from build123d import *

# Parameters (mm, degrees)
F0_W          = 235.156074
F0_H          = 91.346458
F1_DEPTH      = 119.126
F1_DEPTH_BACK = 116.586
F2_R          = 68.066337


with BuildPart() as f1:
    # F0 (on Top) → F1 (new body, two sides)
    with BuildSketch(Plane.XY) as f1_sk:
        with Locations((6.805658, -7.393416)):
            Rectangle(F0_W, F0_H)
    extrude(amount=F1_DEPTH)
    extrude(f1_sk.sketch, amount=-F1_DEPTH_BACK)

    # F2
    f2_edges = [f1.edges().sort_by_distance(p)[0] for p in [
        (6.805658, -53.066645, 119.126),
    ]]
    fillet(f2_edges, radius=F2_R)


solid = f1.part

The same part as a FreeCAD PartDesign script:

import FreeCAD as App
import Part
import Sketcher
from FreeCAD import Vector
Q = App.Units.Quantity


def edges_at(feature, points):
    """Names of the edges that pass closest to the given points."""
    edges = feature.Shape.Edges
    near = lambda p: min(range(len(edges)), key=lambda i: edges[i].distToShape(Part.Vertex(*p))[0])
    return sorted({f"Edge{near(p) + 1}" for p in points})


def add_polygon(sketch, points):
    """Adds a closed chain of lines whose ends are joined by coincident constraints."""
    first, n = sketch.GeometryCount, len(points)
    for a, b in zip(points, points[1:] + points[:1]):
        sketch.addGeometry(Part.LineSegment(App.Vector(*a, 0), App.Vector(*b, 0)), False)
    for i in range(n):
        sketch.addConstraint(Sketcher.Constraint("Coincident", first + i, 2, first + (i + 1) % n, 1))

doc = App.newDocument("Part")
body = doc.addObject("PartDesign::Body", "Body")

sketch1 = body.newObject("Sketcher::SketchObject", "Sketch")
sketch1.AttachmentSupport = (doc.getObject("XY_Plane"), [""])
sketch1.MapMode = "FlatFace"
add_polygon(sketch1, [(-111, 38), (-111, -53), (124, -53), (124, 38)])
sketch1.addConstraint([
    Sketcher.Constraint("Vertical", 0),
    Sketcher.Constraint("Horizontal", 1),
    Sketcher.Constraint("Vertical", 2),
    Sketcher.Constraint("Horizontal", 3),
    Sketcher.Constraint("DistanceY", 0, 2, 0, 1, 91.346458),
    Sketcher.Constraint("DistanceX", 1, 1, 1, 2, 235.156074),
    Sketcher.Constraint("DistanceX", 0, 2, -1, 1, 110.772379),
    Sketcher.Constraint("DistanceY", 0, 2, -1, 1, 53.066645),
])
pad1 = body.newObject("PartDesign::Pad", "Pad")
pad1.Profile = sketch1
pad1.Type = "TwoLengths"
pad1.Length = Q("4.69 in")
pad1.Length2 = Q("4.59 in")
doc.recompute()

fillet = body.newObject("PartDesign::Fillet", "Fillet")
fillet.Base = (pad1, edges_at(pad1, [(6.806, -53.067, 119.126)]))
fillet.Radius = 68.066337

doc.recompute()
